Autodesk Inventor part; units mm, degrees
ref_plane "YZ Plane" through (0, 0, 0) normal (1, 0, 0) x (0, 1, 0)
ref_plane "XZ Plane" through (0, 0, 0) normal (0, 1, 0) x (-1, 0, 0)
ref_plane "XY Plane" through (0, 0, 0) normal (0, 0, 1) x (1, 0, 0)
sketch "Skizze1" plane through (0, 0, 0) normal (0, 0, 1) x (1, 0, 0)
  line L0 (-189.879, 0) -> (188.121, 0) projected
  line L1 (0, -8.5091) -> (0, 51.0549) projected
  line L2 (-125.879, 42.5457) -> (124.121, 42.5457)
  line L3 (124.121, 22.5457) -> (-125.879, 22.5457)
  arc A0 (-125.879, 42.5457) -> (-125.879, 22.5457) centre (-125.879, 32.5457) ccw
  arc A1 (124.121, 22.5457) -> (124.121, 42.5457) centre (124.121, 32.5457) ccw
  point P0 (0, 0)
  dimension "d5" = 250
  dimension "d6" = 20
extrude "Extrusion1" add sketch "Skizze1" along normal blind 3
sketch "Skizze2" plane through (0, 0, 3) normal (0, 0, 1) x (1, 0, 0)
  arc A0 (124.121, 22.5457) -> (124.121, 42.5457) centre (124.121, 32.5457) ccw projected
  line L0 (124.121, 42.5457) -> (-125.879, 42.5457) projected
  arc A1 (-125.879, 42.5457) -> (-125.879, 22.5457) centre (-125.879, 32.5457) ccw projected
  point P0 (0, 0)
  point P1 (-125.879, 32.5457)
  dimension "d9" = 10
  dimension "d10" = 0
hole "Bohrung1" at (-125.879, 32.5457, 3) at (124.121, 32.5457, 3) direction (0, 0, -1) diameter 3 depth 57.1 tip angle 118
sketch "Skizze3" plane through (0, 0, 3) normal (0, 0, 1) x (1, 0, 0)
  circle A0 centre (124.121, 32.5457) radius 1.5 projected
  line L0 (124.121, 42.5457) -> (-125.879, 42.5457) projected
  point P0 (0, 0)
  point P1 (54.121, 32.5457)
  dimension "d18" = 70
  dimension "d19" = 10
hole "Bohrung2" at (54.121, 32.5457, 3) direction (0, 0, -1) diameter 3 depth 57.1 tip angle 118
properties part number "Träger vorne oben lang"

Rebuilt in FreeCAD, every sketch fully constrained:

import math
import FreeCAD as App
import Part
import Sketcher
from FreeCAD import Vector

doc = App.newDocument("Part")
body = doc.addObject("PartDesign::Body", "Body")

sketch1 = body.newObject("Sketcher::SketchObject", "Sketch")
sketch1.AttachmentSupport = (doc.getObject("XY_Plane"), [""])
sketch1.MapMode = "FlatFace"
sketch1.addGeometry(Part.LineSegment(Vector(-125.879, 22.5457, 0), Vector(124.121, 22.5457, 0)), False)
sketch1.addGeometry(Part.ArcOfCircle(Part.Circle(Vector(124.121, 32.5457, 0), Vector(0, 0, 1), 10), math.radians(-90), math.radians(90)), False)
sketch1.addGeometry(Part.LineSegment(Vector(124.121, 42.5457, 0), Vector(-125.879, 42.5457, 0)), False)
sketch1.addGeometry(Part.ArcOfCircle(Part.Circle(Vector(-125.879, 32.5457, 0), Vector(0, 0, 1), 10), math.radians(90), math.radians(270)), False)
sketch1.addConstraint(Sketcher.Constraint("Tangent", 0, 2, 1, 1))
sketch1.addConstraint(Sketcher.Constraint("Tangent", 1, 2, 2, 1))
sketch1.addConstraint(Sketcher.Constraint("Tangent", 2, 2, 3, 1))
sketch1.addConstraint(Sketcher.Constraint("Tangent", 3, 2, 0, 1))
sketch1.addConstraint(Sketcher.Constraint("Horizontal", 0))
sketch1.addConstraint(Sketcher.Constraint("Horizontal", 2))
sketch1.addConstraint(Sketcher.Constraint("Radius", 1, 10.0))
sketch1.addConstraint(Sketcher.Constraint("DistanceX", 0, 1, 0, 2, 250.0))
sketch1.addConstraint(Sketcher.Constraint("DistanceX", -1, 1, 1, 3, 124.121))
sketch1.addConstraint(Sketcher.Constraint("DistanceY", -1, 1, 1, 3, 32.5457))
pad1 = body.newObject("PartDesign::Pad", "Pad")
pad1.Profile = sketch1
pad1.Length = 3

sketch2 = body.newObject("Sketcher::SketchObject", "Sketch001")
sketch2.AttachmentSupport = (doc.getObject("XY_Plane"), [""])
sketch2.MapMode = "FlatFace"
sketch2.AttachmentOffset = App.Placement(Vector(0, 0, 3), App.Rotation())
sketch2.addGeometry(Part.Circle(Vector(-125.879, 32.5457, 0), Vector(0, 0, 1), 1.5), False)
sketch2.addGeometry(Part.Circle(Vector(124.121, 32.5457, 0), Vector(0, 0, 1), 1.5), False)
sketch2.addConstraint(Sketcher.Constraint("Equal", 0, 1))
sketch2.addConstraint(Sketcher.Constraint("Horizontal", 0, 3, 1, 3))
sketch2.addConstraint(Sketcher.Constraint("Diameter", 0, 3.0))
sketch2.addConstraint(Sketcher.Constraint("DistanceX", 0, 3, 1, 3, 250.0))
sketch2.addConstraint(Sketcher.Constraint("DistanceX", 0, 3, -1, 1, 125.879))
sketch2.addConstraint(Sketcher.Constraint("DistanceY", -1, 1, 0, 3, 32.5457))
doc.recompute()
hole = body.newObject("PartDesign::Hole", "Hole")
hole.Profile = sketch2
hole.ThreadType = "None"
hole.Diameter = 3
hole.DepthType = "Dimension"
hole.Depth = 57.1
hole.DrillPoint = "Angled"
hole.DrillPointAngle = 118

sketch3 = body.newObject("Sketcher::SketchObject", "Sketch002")
sketch3.AttachmentSupport = (doc.getObject("XY_Plane"), [""])
sketch3.MapMode = "FlatFace"
sketch3.AttachmentOffset = App.Placement(Vector(0, 0, 3), App.Rotation())
sketch3.addGeometry(Part.Circle(Vector(54.121, 32.5457, 0), Vector(0, 0, 1), 1.5), False)
sketch3.addConstraint(Sketcher.Constraint("Diameter", 0, 3.0))
sketch3.addConstraint(Sketcher.Constraint("DistanceX", -1, 1, 0, 3, 54.121))
sketch3.addConstraint(Sketcher.Constraint("DistanceY", -1, 1, 0, 3, 32.5457))
doc.recompute()
hole2 = body.newObject("PartDesign::Hole", "Hole001")
hole2.Profile = sketch3
hole2.ThreadType = "None"
hole2.Diameter = 3
hole2.DepthType = "Dimension"
hole2.Depth = 57.1
hole2.DrillPoint = "Angled"
hole2.DrillPointAngle = 118

doc.recompute()
